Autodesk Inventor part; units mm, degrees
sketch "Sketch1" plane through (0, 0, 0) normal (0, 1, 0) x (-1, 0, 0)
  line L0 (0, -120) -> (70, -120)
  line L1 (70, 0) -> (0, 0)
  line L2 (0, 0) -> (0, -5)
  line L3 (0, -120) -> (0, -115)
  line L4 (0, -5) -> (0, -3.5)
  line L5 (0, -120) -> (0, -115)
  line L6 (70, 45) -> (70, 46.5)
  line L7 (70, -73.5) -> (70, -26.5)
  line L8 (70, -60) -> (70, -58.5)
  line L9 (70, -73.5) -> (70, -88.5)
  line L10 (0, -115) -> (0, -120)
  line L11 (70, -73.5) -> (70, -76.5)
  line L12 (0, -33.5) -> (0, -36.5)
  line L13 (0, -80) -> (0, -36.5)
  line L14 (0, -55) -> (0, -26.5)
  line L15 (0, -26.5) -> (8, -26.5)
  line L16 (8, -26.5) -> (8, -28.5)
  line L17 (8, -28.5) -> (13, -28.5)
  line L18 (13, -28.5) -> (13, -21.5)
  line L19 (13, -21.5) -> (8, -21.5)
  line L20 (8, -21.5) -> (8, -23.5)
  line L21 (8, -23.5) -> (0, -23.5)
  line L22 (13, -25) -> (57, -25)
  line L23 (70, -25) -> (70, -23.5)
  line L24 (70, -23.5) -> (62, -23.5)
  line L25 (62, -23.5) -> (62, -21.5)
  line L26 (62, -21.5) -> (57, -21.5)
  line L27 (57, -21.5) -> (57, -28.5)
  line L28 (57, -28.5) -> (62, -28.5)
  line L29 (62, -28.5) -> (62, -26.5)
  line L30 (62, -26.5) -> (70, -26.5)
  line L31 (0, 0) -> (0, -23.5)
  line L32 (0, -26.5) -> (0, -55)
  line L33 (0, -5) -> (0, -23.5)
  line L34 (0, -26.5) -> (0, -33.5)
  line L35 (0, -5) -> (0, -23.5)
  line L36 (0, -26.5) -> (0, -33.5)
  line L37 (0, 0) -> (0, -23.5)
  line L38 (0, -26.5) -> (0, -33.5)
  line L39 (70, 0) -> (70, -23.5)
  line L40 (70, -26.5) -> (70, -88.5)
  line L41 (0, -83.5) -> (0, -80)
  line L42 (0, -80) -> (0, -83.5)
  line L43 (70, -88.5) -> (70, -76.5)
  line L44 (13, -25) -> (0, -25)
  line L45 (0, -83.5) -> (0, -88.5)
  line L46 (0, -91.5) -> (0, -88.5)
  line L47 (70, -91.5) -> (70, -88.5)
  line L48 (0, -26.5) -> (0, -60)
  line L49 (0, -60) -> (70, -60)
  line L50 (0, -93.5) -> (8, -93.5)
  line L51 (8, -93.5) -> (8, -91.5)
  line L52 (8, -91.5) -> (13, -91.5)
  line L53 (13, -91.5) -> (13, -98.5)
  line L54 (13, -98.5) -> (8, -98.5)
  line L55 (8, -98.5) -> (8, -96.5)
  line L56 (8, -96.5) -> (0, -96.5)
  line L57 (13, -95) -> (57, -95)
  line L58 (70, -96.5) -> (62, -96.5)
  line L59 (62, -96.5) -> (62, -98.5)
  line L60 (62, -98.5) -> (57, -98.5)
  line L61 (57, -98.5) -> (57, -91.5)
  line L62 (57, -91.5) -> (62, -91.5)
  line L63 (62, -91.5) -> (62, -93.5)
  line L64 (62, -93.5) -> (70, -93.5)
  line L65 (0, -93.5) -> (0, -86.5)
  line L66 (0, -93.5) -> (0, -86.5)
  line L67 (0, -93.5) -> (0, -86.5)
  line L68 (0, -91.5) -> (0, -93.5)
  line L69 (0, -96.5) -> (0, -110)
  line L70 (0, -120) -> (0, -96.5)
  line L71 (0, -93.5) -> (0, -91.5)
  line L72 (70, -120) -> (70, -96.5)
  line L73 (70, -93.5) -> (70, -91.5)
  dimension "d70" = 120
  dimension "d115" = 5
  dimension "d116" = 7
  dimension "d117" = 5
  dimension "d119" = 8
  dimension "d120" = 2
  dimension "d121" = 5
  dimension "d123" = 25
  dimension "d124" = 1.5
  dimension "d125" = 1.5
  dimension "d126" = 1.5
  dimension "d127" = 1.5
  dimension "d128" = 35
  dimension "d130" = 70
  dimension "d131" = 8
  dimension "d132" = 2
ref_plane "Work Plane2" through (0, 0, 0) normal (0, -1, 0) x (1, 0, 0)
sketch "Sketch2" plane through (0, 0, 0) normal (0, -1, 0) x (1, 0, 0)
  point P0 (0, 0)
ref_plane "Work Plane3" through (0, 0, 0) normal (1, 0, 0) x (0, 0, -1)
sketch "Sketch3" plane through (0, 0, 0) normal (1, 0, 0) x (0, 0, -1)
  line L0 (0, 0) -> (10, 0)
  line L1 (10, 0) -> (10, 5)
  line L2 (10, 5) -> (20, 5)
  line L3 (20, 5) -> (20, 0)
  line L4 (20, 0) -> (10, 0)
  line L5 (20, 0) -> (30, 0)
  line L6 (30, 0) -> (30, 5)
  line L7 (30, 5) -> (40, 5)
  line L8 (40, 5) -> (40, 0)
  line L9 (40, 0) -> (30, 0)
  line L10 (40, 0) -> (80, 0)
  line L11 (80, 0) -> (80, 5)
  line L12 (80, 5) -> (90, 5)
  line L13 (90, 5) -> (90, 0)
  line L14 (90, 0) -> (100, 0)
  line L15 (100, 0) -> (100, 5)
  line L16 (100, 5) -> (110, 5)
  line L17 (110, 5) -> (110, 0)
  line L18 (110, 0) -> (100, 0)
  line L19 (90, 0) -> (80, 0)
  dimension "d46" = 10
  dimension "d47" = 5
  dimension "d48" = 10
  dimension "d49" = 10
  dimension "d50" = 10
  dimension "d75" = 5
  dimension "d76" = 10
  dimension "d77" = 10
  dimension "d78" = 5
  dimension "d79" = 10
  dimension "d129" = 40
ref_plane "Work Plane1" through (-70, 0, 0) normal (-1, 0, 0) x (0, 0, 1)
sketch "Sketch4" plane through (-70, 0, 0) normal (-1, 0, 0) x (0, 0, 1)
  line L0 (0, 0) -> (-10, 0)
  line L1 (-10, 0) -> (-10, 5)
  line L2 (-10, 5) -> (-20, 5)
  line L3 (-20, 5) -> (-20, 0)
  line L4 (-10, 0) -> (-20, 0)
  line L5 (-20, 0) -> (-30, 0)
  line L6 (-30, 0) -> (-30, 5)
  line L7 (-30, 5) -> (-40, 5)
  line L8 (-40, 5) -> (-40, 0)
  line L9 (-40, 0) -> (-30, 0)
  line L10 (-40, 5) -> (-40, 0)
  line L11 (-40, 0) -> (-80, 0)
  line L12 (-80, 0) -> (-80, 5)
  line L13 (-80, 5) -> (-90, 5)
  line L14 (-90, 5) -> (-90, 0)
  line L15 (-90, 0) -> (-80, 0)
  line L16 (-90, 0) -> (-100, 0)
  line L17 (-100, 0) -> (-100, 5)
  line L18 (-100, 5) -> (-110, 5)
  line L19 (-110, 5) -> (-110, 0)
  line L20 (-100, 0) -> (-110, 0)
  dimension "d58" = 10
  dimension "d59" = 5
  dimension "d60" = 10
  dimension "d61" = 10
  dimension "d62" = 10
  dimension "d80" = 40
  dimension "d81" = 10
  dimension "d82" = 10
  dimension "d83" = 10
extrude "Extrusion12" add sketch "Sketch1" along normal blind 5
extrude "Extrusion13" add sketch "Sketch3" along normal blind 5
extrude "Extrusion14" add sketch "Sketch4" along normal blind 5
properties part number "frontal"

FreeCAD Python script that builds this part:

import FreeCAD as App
import Part
import Sketcher

V = App.Vector
Q = App.Units.Quantity


def add_polygon(sketch, points):
    """Adds a closed chain of lines whose ends are joined by coincident constraints."""
    first, n = sketch.GeometryCount, len(points)
    for a, b in zip(points, points[1:] + points[:1]):
        sketch.addGeometry(Part.LineSegment(App.Vector(*a, 0), App.Vector(*b, 0)), False)
    for i in range(n):
        sketch.addConstraint(Sketcher.Constraint("Coincident", first + i, 2, first + (i + 1) % n, 1))

doc = App.newDocument("Part")
body = doc.addObject("PartDesign::Body", "Body")

sketch1 = body.newObject("Sketcher::SketchObject", "Sketch")
sketch1.AttachmentSupport = (doc.getObject("XZ_Plane"), [""])
sketch1.MapMode = "FlatFace"
add_polygon(sketch1, [(0, -120), (-70, -120), (-70, -96.5), (-62, -96.5), (-62, -98.5), (-57, -98.5), (-57, -91.5), (-62, -91.5), (-62, -93.5), (-70, -93.5), (-70, -26.5), (-62, -26.5), (-62, -28.5), (-57, -28.5), (-57, -21.5), (-62, -21.5), (-62, -23.5), (-70, -23.5), (-70, 0), (0, 0), (0, -23.5), (-8, -23.5), (-8, -21.5), (-13, -21.5), (-13, -28.5), (-8, -28.5), (-8, -26.5), (0, -26.5), (0, -93.5), (-8, -93.5), (-8, -91.5), (-13, -91.5), (-13, -98.5), (-8, -98.5), (-8, -96.5), (0, -96.5)])
sketch1.addConstraint(Sketcher.Constraint("Horizontal", 0))
sketch1.addConstraint(Sketcher.Constraint("Vertical", 1))
sketch1.addConstraint(Sketcher.Constraint("Horizontal", 2))
sketch1.addConstraint(Sketcher.Constraint("Vertical", 3))
sketch1.addConstraint(Sketcher.Constraint("Horizontal", 4))
sketch1.addConstraint(Sketcher.Constraint("Vertical", 5))
sketch1.addConstraint(Sketcher.Constraint("Horizontal", 6))
sketch1.addConstraint(Sketcher.Constraint("Vertical", 7))
sketch1.addConstraint(Sketcher.Constraint("Horizontal", 8))
sketch1.addConstraint(Sketcher.Constraint("Vertical", 9))
sketch1.addConstraint(Sketcher.Constraint("Horizontal", 10))
sketch1.addConstraint(Sketcher.Constraint("Vertical", 11))
sketch1.addConstraint(Sketcher.Constraint("Horizontal", 12))
sketch1.addConstraint(Sketcher.Constraint("Vertical", 13))
sketch1.addConstraint(Sketcher.Constraint("Horizontal", 14))
sketch1.addConstraint(Sketcher.Constraint("Vertical", 15))
sketch1.addConstraint(Sketcher.Constraint("Horizontal", 16))
sketch1.addConstraint(Sketcher.Constraint("Vertical", 17))
sketch1.addConstraint(Sketcher.Constraint("Horizontal", 18))
sketch1.addConstraint(Sketcher.Constraint("Vertical", 19))
sketch1.addConstraint(Sketcher.Constraint("Horizontal", 20))
sketch1.addConstraint(Sketcher.Constraint("Vertical", 21))
sketch1.addConstraint(Sketcher.Constraint("Horizontal", 22))
sketch1.addConstraint(Sketcher.Constraint("Vertical", 23))
sketch1.addConstraint(Sketcher.Constraint("Horizontal", 24))
sketch1.addConstraint(Sketcher.Constraint("Vertical", 25))
sketch1.addConstraint(Sketcher.Constraint("Horizontal", 26))
sketch1.addConstraint(Sketcher.Constraint("Vertical", 27))
sketch1.addConstraint(Sketcher.Constraint("Horizontal", 28))
sketch1.addConstraint(Sketcher.Constraint("Vertical", 29))
sketch1.addConstraint(Sketcher.Constraint("Horizontal", 30))
sketch1.addConstraint(Sketcher.Constraint("Vertical", 31))
sketch1.addConstraint(Sketcher.Constraint("Horizontal", 32))
sketch1.addConstraint(Sketcher.Constraint("Vertical", 33))
sketch1.addConstraint(Sketcher.Constraint("Horizontal", 34))
sketch1.addConstraint(Sketcher.Constraint("Vertical", 35))
sketch1.addConstraint(Sketcher.Constraint("Coincident", 18, 2, -1, 1))
sketch1.addConstraint(Sketcher.Constraint("PointOnObject", 26, 2, -2))
sketch1.addConstraint(Sketcher.Constraint("PointOnObject", 34, 2, -2))
sketch1.addConstraint(Sketcher.Constraint("Horizontal", 16, 2, 19, 2))
sketch1.addConstraint(Sketcher.Constraint("Horizontal", 14, 2, 21, 2))
sketch1.addConstraint(Sketcher.Constraint("Horizontal", 12, 2, 23, 2))
sketch1.addConstraint(Sketcher.Constraint("Horizontal", 10, 2, 25, 2))
sketch1.addConstraint(Sketcher.Constraint("Horizontal", 8, 2, 27, 2))
sketch1.addConstraint(Sketcher.Constraint("Horizontal", 6, 2, 29, 2))
sketch1.addConstraint(Sketcher.Constraint("Horizontal", 4, 2, 31, 2))
sketch1.addConstraint(Sketcher.Constraint("Horizontal", 2, 2, 33, 2))
sketch1.addConstraint(Sketcher.Constraint("Vertical", 3, 2, 6, 2))
sketch1.addConstraint(Sketcher.Constraint("Vertical", 1, 2, 8, 2))
sketch1.addConstraint(Sketcher.Constraint("Vertical", 7, 2, 10, 2))
sketch1.addConstraint(Sketcher.Constraint("Vertical", 5, 2, 12, 2))
sketch1.addConstraint(Sketcher.Constraint("Vertical", 11, 2, 14, 2))
sketch1.addConstraint(Sketcher.Constraint("Vertical", 9, 2, 16, 2))
sketch1.addConstraint(Sketcher.Constraint("Vertical", 21, 2, 24, 2))
sketch1.addConstraint(Sketcher.Constraint("Vertical", 25, 2, 28, 2))
sketch1.addConstraint(Sketcher.Constraint("Vertical", 23, 2, 30, 2))
sketch1.addConstraint(Sketcher.Constraint("Vertical", 29, 2, 32, 2))
sketch1.addConstraint(Sketcher.Constraint("Equal", 16, 20))
sketch1.addConstraint(Sketcher.Constraint("Equal", 14, 22))
sketch1.addConstraint(Sketcher.Constraint("Equal", 3, 7))
sketch1.addConstraint(Sketcher.Constraint("Equal", 7, 11))
sketch1.addConstraint(Sketcher.Constraint("Equal", 5, 13))
sketch1.addConstraint(Sketcher.Constraint("Equal", 11, 15))
sketch1.addConstraint(Sketcher.Constraint("Equal", 1, 17))
sketch1.addConstraint(Sketcher.Constraint("DistanceX", 0, 2, 0, 1, Q("70 mm")))
sketch1.addConstraint(Sketcher.Constraint("DistanceX", 2, 1, 2, 2, Q("8 mm")))
sketch1.addConstraint(Sketcher.Constraint("DistanceX", 4, 1, 4, 2, Q("5 mm")))
sketch1.addConstraint(Sketcher.Constraint("DistanceY", 3, 2, 3, 1, Q("2 mm")))
sketch1.addConstraint(Sketcher.Constraint("DistanceY", 5, 1, 5, 2, Q("7 mm")))
sketch1.addConstraint(Sketcher.Constraint("DistanceY", 0, 2, -1, 1, Q("120 mm")))
sketch1.addConstraint(Sketcher.Constraint("DistanceY", 1, 2, 9, 2, Q("70 mm")))
pad1 = body.newObject("PartDesign::Pad", "Pad")
pad1.Profile = sketch1
pad1.Length = 5
pad1.Reversed = True

sketch2 = body.newObject("Sketcher::SketchObject", "Sketch001")
sketch2.AttachmentSupport = (doc.getObject("YZ_Plane"), [""])
sketch2.MapMode = "FlatFace"
add_polygon(sketch2, [(5, -100), (0, -100), (0, -110), (5, -110)])
add_polygon(sketch2, [(5, -80), (0, -80), (0, -90), (5, -90)])
add_polygon(sketch2, [(5, -30), (0, -30), (0, -40), (5, -40)])
add_polygon(sketch2, [(5, -10), (0, -10), (0, -20), (5, -20)])
sketch2.addConstraint(Sketcher.Constraint("Horizontal", 0))
sketch2.addConstraint(Sketcher.Constraint("Vertical", 1))
sketch2.addConstraint(Sketcher.Constraint("Horizontal", 2))
sketch2.addConstraint(Sketcher.Constraint("Vertical", 3))
sketch2.addConstraint(Sketcher.Constraint("Horizontal", 4))
sketch2.addConstraint(Sketcher.Constraint("Vertical", 5))
sketch2.addConstraint(Sketcher.Constraint("Horizontal", 6))
sketch2.addConstraint(Sketcher.Constraint("Vertical", 7))
sketch2.addConstraint(Sketcher.Constraint("Horizontal", 8))
sketch2.addConstraint(Sketcher.Constraint("Vertical", 9))
sketch2.addConstraint(Sketcher.Constraint("Horizontal", 10))
sketch2.addConstraint(Sketcher.Constraint("Vertical", 11))
sketch2.addConstraint(Sketcher.Constraint("Horizontal", 12))
sketch2.addConstraint(Sketcher.Constraint("Vertical", 13))
sketch2.addConstraint(Sketcher.Constraint("Horizontal", 14))
sketch2.addConstraint(Sketcher.Constraint("Vertical", 15))
sketch2.addConstraint(Sketcher.Constraint("PointOnObject", 0, 2, -2))
sketch2.addConstraint(Sketcher.Constraint("PointOnObject", 4, 2, -2))
sketch2.addConstraint(Sketcher.Constraint("PointOnObject", 8, 2, -2))
sketch2.addConstraint(Sketcher.Constraint("PointOnObject", 12, 2, -2))
sketch2.addConstraint(Sketcher.Constraint("Vertical", 3, 2, 6, 2))
sketch2.addConstraint(Sketcher.Constraint("Vertical", 7, 2, 10, 2))
sketch2.addConstraint(Sketcher.Constraint("Vertical", 11, 2, 14, 2))
sketch2.addConstraint(Sketcher.Constraint("Equal", 3, 5))
sketch2.addConstraint(Sketcher.Constraint("Equal", 7, 9))
sketch2.addConstraint(Sketcher.Constraint("Equal", 11, 13))
sketch2.addConstraint(Sketcher.Constraint("DistanceX", 0, 2, 0, 1, Q("5 mm")))
sketch2.addConstraint(Sketcher.Constraint("DistanceY", 1, 2, 1, 1, Q("10 mm")))
sketch2.addConstraint(Sketcher.Constraint("DistanceY", 9, 2, -1, 1, Q("40 mm")))
sketch2.addConstraint(Sketcher.Constraint("DistanceY", 12, 2, -1, 1, Q("10 mm")))
sketch2.addConstraint(Sketcher.Constraint("DistanceY", 0, 2, 5, 2, Q("10 mm")))
sketch2.addConstraint(Sketcher.Constraint("DistanceY", 4, 2, 9, 2, Q("40 mm")))
pad2 = body.newObject("PartDesign::Pad", "Pad001")
pad2.Profile = sketch2
pad2.Length = 5

sketch3 = body.newObject("Sketcher::SketchObject", "Sketch002")
sketch3.AttachmentSupport = (doc.getObject("YZ_Plane"), [""])
sketch3.MapMode = "FlatFace"
sketch3.AttachmentOffset = App.Placement(V(0, 0, -70), App.Rotation())
add_polygon(sketch3, [(0, -20), (0, -10), (5, -10), (5, -20)])
add_polygon(sketch3, [(0, -110), (0, -100), (5, -100), (5, -110)])
add_polygon(sketch3, [(0, -90), (0, -80), (5, -80), (5, -90)])
add_polygon(sketch3, [(0, -40), (0, -30), (5, -30), (5, -40)])
sketch3.addConstraint(Sketcher.Constraint("Vertical", 0))
sketch3.addConstraint(Sketcher.Constraint("Horizontal", 1))
sketch3.addConstraint(Sketcher.Constraint("Vertical", 2))
sketch3.addConstraint(Sketcher.Constraint("Horizontal", 3))
sketch3.addConstraint(Sketcher.Constraint("Vertical", 4))
sketch3.addConstraint(Sketcher.Constraint("Horizontal", 5))
sketch3.addConstraint(Sketcher.Constraint("Vertical", 6))
sketch3.addConstraint(Sketcher.Constraint("Horizontal", 7))
sketch3.addConstraint(Sketcher.Constraint("Vertical", 8))
sketch3.addConstraint(Sketcher.Constraint("Horizontal", 9))
sketch3.addConstraint(Sketcher.Constraint("Vertical", 10))
sketch3.addConstraint(Sketcher.Constraint("Horizontal", 11))
sketch3.addConstraint(Sketcher.Constraint("Vertical", 12))
sketch3.addConstraint(Sketcher.Constraint("Horizontal", 13))
sketch3.addConstraint(Sketcher.Constraint("Vertical", 14))
sketch3.addConstraint(Sketcher.Constraint("Horizontal", 15))
sketch3.addConstraint(Sketcher.Constraint("PointOnObject", 0, 2, -2))
sketch3.addConstraint(Sketcher.Constraint("PointOnObject", 4, 2, -2))
sketch3.addConstraint(Sketcher.Constraint("PointOnObject", 8, 2, -2))
sketch3.addConstraint(Sketcher.Constraint("PointOnObject", 12, 2, -2))
sketch3.addConstraint(Sketcher.Constraint("Vertical", 2, 2, 5, 2))
sketch3.addConstraint(Sketcher.Constraint("Vertical", 6, 2, 9, 2))
sketch3.addConstraint(Sketcher.Constraint("Vertical", 10, 2, 13, 2))
sketch3.addConstraint(Sketcher.Constraint("Equal", 2, 4))
sketch3.addConstraint(Sketcher.Constraint("Equal", 6, 8))
sketch3.addConstraint(Sketcher.Constraint("Equal", 10, 12))
sketch3.addConstraint(Sketcher.Constraint("DistanceX", 1, 1, 1, 2, Q("5 mm")))
sketch3.addConstraint(Sketcher.Constraint("DistanceY", 0, 1, 0, 2, Q("10 mm")))
sketch3.addConstraint(Sketcher.Constraint("DistanceY", 0, 2, -1, 1, Q("10 mm")))
sketch3.addConstraint(Sketcher.Constraint("DistanceY", 14, 2, -1, 1, Q("40 mm")))
sketch3.addConstraint(Sketcher.Constraint("DistanceY", 5, 2, 10, 2, Q("10 mm")))
sketch3.addConstraint(Sketcher.Constraint("DistanceY", 4, 2, -1, 1, Q("100 mm")))
pad3 = body.newObject("PartDesign::Pad", "Pad002")
pad3.Profile = sketch3
pad3.Length = 5
pad3.Reversed = True

doc.recompute()
